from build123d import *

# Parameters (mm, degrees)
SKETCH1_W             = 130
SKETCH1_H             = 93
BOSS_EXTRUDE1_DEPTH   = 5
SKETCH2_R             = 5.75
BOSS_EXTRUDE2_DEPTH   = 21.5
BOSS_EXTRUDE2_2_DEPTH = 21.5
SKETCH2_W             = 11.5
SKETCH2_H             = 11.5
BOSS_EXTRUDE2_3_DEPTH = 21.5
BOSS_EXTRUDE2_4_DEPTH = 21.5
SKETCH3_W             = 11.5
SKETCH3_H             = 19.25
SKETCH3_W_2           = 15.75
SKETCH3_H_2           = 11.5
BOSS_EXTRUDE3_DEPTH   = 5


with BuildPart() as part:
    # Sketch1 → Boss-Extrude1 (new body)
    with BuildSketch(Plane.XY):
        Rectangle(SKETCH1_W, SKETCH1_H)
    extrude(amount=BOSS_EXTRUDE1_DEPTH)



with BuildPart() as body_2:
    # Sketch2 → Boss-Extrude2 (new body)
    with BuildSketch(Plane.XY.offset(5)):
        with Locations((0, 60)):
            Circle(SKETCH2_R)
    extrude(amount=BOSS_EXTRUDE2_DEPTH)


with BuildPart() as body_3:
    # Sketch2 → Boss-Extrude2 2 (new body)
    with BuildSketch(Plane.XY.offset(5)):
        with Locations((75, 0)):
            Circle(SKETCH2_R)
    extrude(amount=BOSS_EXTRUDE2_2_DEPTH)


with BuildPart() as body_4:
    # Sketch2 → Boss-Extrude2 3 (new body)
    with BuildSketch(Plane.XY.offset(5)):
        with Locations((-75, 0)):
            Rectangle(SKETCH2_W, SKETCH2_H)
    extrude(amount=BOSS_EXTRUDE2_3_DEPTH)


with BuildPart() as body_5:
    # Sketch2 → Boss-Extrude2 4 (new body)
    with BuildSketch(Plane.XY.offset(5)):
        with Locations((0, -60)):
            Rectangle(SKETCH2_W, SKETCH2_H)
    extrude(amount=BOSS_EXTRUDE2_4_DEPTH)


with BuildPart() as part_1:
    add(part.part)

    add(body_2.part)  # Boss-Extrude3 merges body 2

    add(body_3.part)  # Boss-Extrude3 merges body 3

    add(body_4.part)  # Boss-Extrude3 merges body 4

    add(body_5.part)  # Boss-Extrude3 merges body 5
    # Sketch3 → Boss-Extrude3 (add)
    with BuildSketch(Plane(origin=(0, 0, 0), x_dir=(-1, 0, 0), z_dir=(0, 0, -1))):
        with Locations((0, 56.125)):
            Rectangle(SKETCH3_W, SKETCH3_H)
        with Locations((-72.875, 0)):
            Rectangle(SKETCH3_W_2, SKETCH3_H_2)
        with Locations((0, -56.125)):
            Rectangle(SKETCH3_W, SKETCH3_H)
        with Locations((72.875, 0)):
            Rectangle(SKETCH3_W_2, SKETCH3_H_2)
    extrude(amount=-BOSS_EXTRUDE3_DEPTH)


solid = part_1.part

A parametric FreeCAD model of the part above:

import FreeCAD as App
import Part
import Sketcher
from FreeCAD import Vector


def add_polygon(sketch, points):
    """Adds a closed chain of lines whose ends are joined by coincident constraints."""
    first, n = sketch.GeometryCount, len(points)
    for a, b in zip(points, points[1:] + points[:1]):
        sketch.addGeometry(Part.LineSegment(App.Vector(*a, 0), App.Vector(*b, 0)), False)
    for i in range(n):
        sketch.addConstraint(Sketcher.Constraint("Coincident", first + i, 2, first + (i + 1) % n, 1))

doc = App.newDocument("Part")
body = doc.addObject("PartDesign::Body", "Body")

# Sketch on XY plane
sketch1 = doc.addObject("Sketcher::SketchObject", "Sketch")
body.addObject(sketch1)
sketch1.AttachmentSupport = (doc.XY_Plane, [""])
sketch1.MapMode = "FlatFace"
add_polygon(sketch1, [(-65, 46), (-65, -46), (65, -46), (65, 46)])  # lines 0-3
sketch1.addConstraint(Sketcher.Constraint("Vertical", 0))
sketch1.addConstraint(Sketcher.Constraint("Horizontal", 1))
sketch1.addConstraint(Sketcher.Constraint("Vertical", 2))
sketch1.addConstraint(Sketcher.Constraint("Horizontal", 3))
sketch1.addConstraint(Sketcher.Constraint("Symmetric", 0, 2, 2, 2, -1, 1))
sketch1.addConstraint(Sketcher.Constraint("DistanceX", 1, 1, 1, 2, 130.0))
sketch1.addConstraint(Sketcher.Constraint("DistanceY", 0, 2, 0, 1, 93.0))
pad1 = doc.addObject("PartDesign::Pad", "Pad")
body.addObject(pad1)
pad1.Profile = sketch1
pad1.Length = 5
body2 = doc.addObject("PartDesign::Body", "Body001")

# Sketch on XY plane
sketch2 = doc.addObject("Sketcher::SketchObject", "Sketch001")
body2.addObject(sketch2)
sketch2.AttachmentSupport = (doc.getObject("XY_Plane001"), [""])
sketch2.MapMode = "FlatFace"
sketch2.AttachmentOffset = App.Placement(Vector(0, 0, 5), App.Rotation())
sketch2.addGeometry(Part.Circle(Vector(0, 60, 0), Vector(0, 0, 1), 6), False)
sketch2.addConstraint(Sketcher.Constraint("PointOnObject", 0, 3, -2))
sketch2.addConstraint(Sketcher.Constraint("Diameter", 0, 11.5))
sketch2.addConstraint(Sketcher.Constraint("DistanceY", -1, 1, 0, 3, 60.0))
pad2 = doc.addObject("PartDesign::Pad", "Pad001")
body2.addObject(pad2)
pad2.Profile = sketch2
pad2.Length = 21.5
body3 = doc.addObject("PartDesign::Body", "Body002")

# Sketch on XY plane
sketch3 = doc.addObject("Sketcher::SketchObject", "Sketch002")
body3.addObject(sketch3)
sketch3.AttachmentSupport = (doc.getObject("XY_Plane002"), [""])
sketch3.MapMode = "FlatFace"
sketch3.AttachmentOffset = App.Placement(Vector(0, 0, 5), App.Rotation())
sketch3.addGeometry(Part.Circle(Vector(75, 0, 0), Vector(0, 0, 1), 6), False)
sketch3.addConstraint(Sketcher.Constraint("PointOnObject", 0, 3, -1))
sketch3.addConstraint(Sketcher.Constraint("Diameter", 0, 11.5))
sketch3.addConstraint(Sketcher.Constraint("DistanceX", -1, 1, 0, 3, 75.0))
pad3 = doc.addObject("PartDesign::Pad", "Pad002")
body3.addObject(pad3)
pad3.Profile = sketch3
pad3.Length = 21.5
body4 = doc.addObject("PartDesign::Body", "Body003")

# Sketch on XY plane
sketch4 = doc.addObject("Sketcher::SketchObject", "Sketch003")
body4.addObject(sketch4)
sketch4.AttachmentSupport = (doc.getObject("XY_Plane003"), [""])
sketch4.MapMode = "FlatFace"
sketch4.AttachmentOffset = App.Placement(Vector(0, 0, 5), App.Rotation())
add_polygon(sketch4, [(-81, 6), (-81, -6), (-69, -6), (-69, 6)])  # lines 0-3
sketch4.addConstraint(Sketcher.Constraint("Vertical", 0))
sketch4.addConstraint(Sketcher.Constraint("Horizontal", 1))
sketch4.addConstraint(Sketcher.Constraint("Vertical", 2))
sketch4.addConstraint(Sketcher.Constraint("Horizontal", 3))
sketch4.addConstraint(Sketcher.Constraint("Equal", 3, 0))
sketch4.addConstraint(Sketcher.Constraint("DistanceX", 1, 1, 1, 2, 11.5))
sketch4.addConstraint(Sketcher.Constraint("DistanceX", 0, 2, -1, 1, 80.75))
sketch4.addConstraint(Sketcher.Constraint("DistanceY", 0, 2, -1, 1, 5.75))
pad4 = doc.addObject("PartDesign::Pad", "Pad003")
body4.addObject(pad4)
pad4.Profile = sketch4
pad4.Length = 21.5
body5 = doc.addObject("PartDesign::Body", "Body004")

# Sketch on XY plane
sketch5 = doc.addObject("Sketcher::SketchObject", "Sketch004")
body5.addObject(sketch5)
sketch5.AttachmentSupport = (doc.getObject("XY_Plane004"), [""])
sketch5.MapMode = "FlatFace"
sketch5.AttachmentOffset = App.Placement(Vector(0, 0, 5), App.Rotation())
add_polygon(sketch5, [(-6, -54), (-6, -66), (6, -66), (6, -54)])  # lines 0-3
sketch5.addConstraint(Sketcher.Constraint("Vertical", 0))
sketch5.addConstraint(Sketcher.Constraint("Horizontal", 1))
sketch5.addConstraint(Sketcher.Constraint("Vertical", 2))
sketch5.addConstraint(Sketcher.Constraint("Horizontal", 3))
sketch5.addConstraint(Sketcher.Constraint("Equal", 3, 0))
sketch5.addConstraint(Sketcher.Constraint("DistanceX", 1, 1, 1, 2, 11.5))
sketch5.addConstraint(Sketcher.Constraint("DistanceX", 0, 2, -1, 1, 5.75))
sketch5.addConstraint(Sketcher.Constraint("DistanceY", 0, 2, -1, 1, 65.75))
pad5 = doc.addObject("PartDesign::Pad", "Pad004")
body5.addObject(pad5)
pad5.Profile = sketch5
pad5.Length = 21.5
body.AllowCompound = True
doc.recompute()

boolean = doc.addObject("PartDesign::Boolean", "Boolean")
body.addObject(boolean)
boolean.Type = "Fuse"
boolean.addObjects([body2])
doc.recompute()

boolean2 = doc.addObject("PartDesign::Boolean", "Boolean001")
body.addObject(boolean2)
boolean2.Type = "Fuse"
boolean2.addObjects([body3])
doc.recompute()

boolean3 = doc.addObject("PartDesign::Boolean", "Boolean002")
body.addObject(boolean3)
boolean3.Type = "Fuse"
boolean3.addObjects([body4])
doc.recompute()

boolean4 = doc.addObject("PartDesign::Boolean", "Boolean003")
body.addObject(boolean4)
boolean4.Type = "Fuse"
boolean4.addObjects([body5])

# Sketch on XY plane
sketch6 = doc.addObject("Sketcher::SketchObject", "Sketch005")
body.addObject(sketch6)
sketch6.AttachmentSupport = (doc.XY_Plane, [""])
sketch6.MapMode = "FlatFace"
add_polygon(sketch6, [(6, 66), (6, 46), (-6, 46), (-6, 66)])  # lines 0-3
add_polygon(sketch6, [(81, 6), (81, -6), (65, -6), (65, 6)])  # lines 4-7
add_polygon(sketch6, [(6, -46), (6, -66), (-6, -66), (-6, -46)])  # lines 8-11
add_polygon(sketch6, [(-65, 6), (-65, -6), (-81, -6), (-81, 6)])  # lines 12-15
sketch6.addConstraint(Sketcher.Constraint("Vertical", 0))
sketch6.addConstraint(Sketcher.Constraint("Horizontal", 1))
sketch6.addConstraint(Sketcher.Constraint("Vertical", 2))
sketch6.addConstraint(Sketcher.Constraint("Horizontal", 3))
sketch6.addConstraint(Sketcher.Constraint("Vertical", 4))
sketch6.addConstraint(Sketcher.Constraint("Horizontal", 5))
sketch6.addConstraint(Sketcher.Constraint("Vertical", 6))
sketch6.addConstraint(Sketcher.Constraint("Horizontal", 7))
sketch6.addConstraint(Sketcher.Constraint("Vertical", 8))
sketch6.addConstraint(Sketcher.Constraint("Horizontal", 9))
sketch6.addConstraint(Sketcher.Constraint("Vertical", 10))
sketch6.addConstraint(Sketcher.Constraint("Horizontal", 11))
sketch6.addConstraint(Sketcher.Constraint("Vertical", 12))
sketch6.addConstraint(Sketcher.Constraint("Horizontal", 13))
sketch6.addConstraint(Sketcher.Constraint("Vertical", 14))
sketch6.addConstraint(Sketcher.Constraint("Horizontal", 15))
sketch6.addConstraint(Sketcher.Constraint("Symmetric", 2, 2, 8, 2, -1, 1))
sketch6.addConstraint(Sketcher.Constraint("Symmetric", 0, 2, 10, 2, -1, 1))
sketch6.addConstraint(Sketcher.Constraint("Symmetric", 6, 2, 12, 2, -1, 1))
sketch6.addConstraint(Sketcher.Constraint("Symmetric", 4, 2, 14, 2, -1, 1))
sketch6.addConstraint(Sketcher.Constraint("Horizontal", 5, 2, 12, 2))
sketch6.addConstraint(Sketcher.Constraint("Vertical", 3, 2, 8, 2))
sketch6.addConstraint(Sketcher.Constraint("Equal", 11, 4))
sketch6.addConstraint(Sketcher.Constraint("DistanceX", 1, 2, 1, 1, 11.5))
sketch6.addConstraint(Sketcher.Constraint("DistanceX", -1, 1, 5, 2, 65.0))
sketch6.addConstraint(Sketcher.Constraint("DistanceX", 0, 2, 4, 2, 75.0))
sketch6.addConstraint(Sketcher.Constraint("DistanceY", 6, 2, 3, 2, 60.0))
sketch6.addConstraint(Sketcher.Constraint("DistanceY", 10, 2, 1, 2, 93.0))
pad6 = doc.addObject("PartDesign::Pad", "Pad005")
body.addObject(pad6)
pad6.Profile = sketch6
pad6.Length = 5

doc.recompute()
